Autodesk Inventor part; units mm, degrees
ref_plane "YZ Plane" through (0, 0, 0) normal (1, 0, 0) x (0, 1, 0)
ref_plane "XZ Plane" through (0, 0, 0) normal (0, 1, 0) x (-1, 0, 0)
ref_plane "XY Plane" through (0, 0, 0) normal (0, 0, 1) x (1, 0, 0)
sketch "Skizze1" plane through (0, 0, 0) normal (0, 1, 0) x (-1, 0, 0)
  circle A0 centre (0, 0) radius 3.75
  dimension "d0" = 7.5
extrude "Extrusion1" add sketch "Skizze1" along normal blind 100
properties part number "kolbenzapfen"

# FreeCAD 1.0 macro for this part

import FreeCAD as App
import Part
import Sketcher

doc = App.newDocument("Part")
body = doc.addObject("PartDesign::Body", "Body")

# Sketch on XZ plane
sketch1 = body.newObject("Sketcher::SketchObject", "Sketch")
sketch1.AttachmentSupport = (doc.getObject("XZ_Plane"), [""])
sketch1.MapMode = "FlatFace"
sketch1.addGeometry(Part.Circle(App.Vector(0, 0, 0), App.Vector(0, 0, 1), 3.75), False)
sketch1.addConstraint(Sketcher.Constraint("Coincident", 0, 3, -1, 1))
sketch1.addConstraint(Sketcher.Constraint("Diameter", 0, 7.5))
pad1 = body.newObject("PartDesign::Pad", "Pad")
pad1.Profile = sketch1
pad1.Length = 100
pad1.Reversed = True

doc.recompute()
